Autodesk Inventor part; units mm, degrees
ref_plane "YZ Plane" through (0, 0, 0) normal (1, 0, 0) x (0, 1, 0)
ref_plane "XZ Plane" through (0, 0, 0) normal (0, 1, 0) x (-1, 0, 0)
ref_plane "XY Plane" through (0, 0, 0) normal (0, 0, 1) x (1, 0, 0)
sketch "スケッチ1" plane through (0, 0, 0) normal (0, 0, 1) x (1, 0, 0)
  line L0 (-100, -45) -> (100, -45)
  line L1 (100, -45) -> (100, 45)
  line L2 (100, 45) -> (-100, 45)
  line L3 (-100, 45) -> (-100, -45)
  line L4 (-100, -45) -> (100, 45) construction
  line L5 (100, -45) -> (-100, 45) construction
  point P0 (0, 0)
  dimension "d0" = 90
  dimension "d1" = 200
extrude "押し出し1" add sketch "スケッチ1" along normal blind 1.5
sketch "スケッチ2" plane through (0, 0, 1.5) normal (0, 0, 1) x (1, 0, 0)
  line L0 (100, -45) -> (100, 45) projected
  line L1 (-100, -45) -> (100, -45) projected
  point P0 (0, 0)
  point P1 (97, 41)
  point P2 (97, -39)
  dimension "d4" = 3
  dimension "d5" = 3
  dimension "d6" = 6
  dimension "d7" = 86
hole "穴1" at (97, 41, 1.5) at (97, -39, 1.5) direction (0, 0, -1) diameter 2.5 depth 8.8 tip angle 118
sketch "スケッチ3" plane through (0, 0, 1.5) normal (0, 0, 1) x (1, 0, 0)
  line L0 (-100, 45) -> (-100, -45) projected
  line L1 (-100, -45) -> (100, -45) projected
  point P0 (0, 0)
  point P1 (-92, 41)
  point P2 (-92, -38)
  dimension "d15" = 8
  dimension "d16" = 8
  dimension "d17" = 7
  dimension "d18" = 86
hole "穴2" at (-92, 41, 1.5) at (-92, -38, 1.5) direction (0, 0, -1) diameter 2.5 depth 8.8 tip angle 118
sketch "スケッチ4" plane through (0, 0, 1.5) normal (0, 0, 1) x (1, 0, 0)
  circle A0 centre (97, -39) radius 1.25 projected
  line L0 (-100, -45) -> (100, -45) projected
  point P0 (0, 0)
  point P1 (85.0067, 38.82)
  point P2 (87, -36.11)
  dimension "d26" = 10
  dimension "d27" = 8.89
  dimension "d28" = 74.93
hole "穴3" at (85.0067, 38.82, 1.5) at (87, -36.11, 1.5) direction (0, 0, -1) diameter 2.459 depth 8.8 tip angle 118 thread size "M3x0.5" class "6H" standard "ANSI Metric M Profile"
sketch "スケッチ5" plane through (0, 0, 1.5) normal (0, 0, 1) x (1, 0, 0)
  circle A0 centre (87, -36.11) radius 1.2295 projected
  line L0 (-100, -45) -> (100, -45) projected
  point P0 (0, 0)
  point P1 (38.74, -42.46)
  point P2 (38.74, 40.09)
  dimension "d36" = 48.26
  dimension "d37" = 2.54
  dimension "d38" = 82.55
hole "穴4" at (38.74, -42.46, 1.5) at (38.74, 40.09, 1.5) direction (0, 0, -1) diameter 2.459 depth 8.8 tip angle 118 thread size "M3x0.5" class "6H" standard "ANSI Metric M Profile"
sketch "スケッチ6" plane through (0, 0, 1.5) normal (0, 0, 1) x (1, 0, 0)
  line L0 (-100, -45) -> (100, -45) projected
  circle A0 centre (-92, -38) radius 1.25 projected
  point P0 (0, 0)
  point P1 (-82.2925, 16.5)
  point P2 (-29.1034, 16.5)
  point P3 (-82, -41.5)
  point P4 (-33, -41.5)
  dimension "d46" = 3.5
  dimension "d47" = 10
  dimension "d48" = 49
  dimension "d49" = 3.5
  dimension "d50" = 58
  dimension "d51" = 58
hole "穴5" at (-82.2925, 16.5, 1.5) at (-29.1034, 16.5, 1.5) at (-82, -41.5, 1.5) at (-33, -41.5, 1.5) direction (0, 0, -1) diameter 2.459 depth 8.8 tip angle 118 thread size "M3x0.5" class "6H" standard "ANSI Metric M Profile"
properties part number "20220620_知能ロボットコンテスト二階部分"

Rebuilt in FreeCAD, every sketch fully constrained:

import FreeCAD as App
import Part
import Sketcher

V = App.Vector

doc = App.newDocument("Part")
body = doc.addObject("PartDesign::Body", "Body")

# Sketch on XY plane
sketch1 = body.newObject("Sketcher::SketchObject", "Sketch")
sketch1.AttachmentSupport = (doc.getObject("XY_Plane"), [""])
sketch1.MapMode = "FlatFace"
sketch1.addGeometry(Part.LineSegment(V(-100, 45, 0), V(-100, -45, 0)), False)
sketch1.addGeometry(Part.LineSegment(V(-100, -45, 0), V(100, -45, 0)), False)
sketch1.addGeometry(Part.LineSegment(V(100, -45, 0), V(100, 45, 0)), False)
sketch1.addGeometry(Part.LineSegment(V(100, 45, 0), V(-100, 45, 0)), False)
sketch1.addConstraint(Sketcher.Constraint("Coincident", 0, 2, 1, 1))
sketch1.addConstraint(Sketcher.Constraint("Coincident", 1, 2, 2, 1))
sketch1.addConstraint(Sketcher.Constraint("Coincident", 2, 2, 3, 1))
sketch1.addConstraint(Sketcher.Constraint("Coincident", 3, 2, 0, 1))
sketch1.addConstraint(Sketcher.Constraint("Vertical", 0))
sketch1.addConstraint(Sketcher.Constraint("Horizontal", 1))
sketch1.addConstraint(Sketcher.Constraint("Vertical", 2))
sketch1.addConstraint(Sketcher.Constraint("Horizontal", 3))
sketch1.addConstraint(Sketcher.Constraint("Symmetric", 0, 2, 2, 2, -1, 1))
sketch1.addConstraint(Sketcher.Constraint("DistanceX", 1, 1, 1, 2, 200.0))
sketch1.addConstraint(Sketcher.Constraint("DistanceY", 0, 2, 0, 1, 90.0))
pad1 = body.newObject("PartDesign::Pad", "Pad")
pad1.Profile = sketch1
pad1.Length = 1.5

# Sketch on XY plane
sketch2 = body.newObject("Sketcher::SketchObject", "Sketch001")
sketch2.AttachmentSupport = (doc.getObject("XY_Plane"), [""])
sketch2.MapMode = "FlatFace"
sketch2.AttachmentOffset = App.Placement(V(0, 0, 1.5), App.Rotation())
sketch2.addGeometry(Part.Circle(V(97, 41, 0), V(0, 0, 1), 1.2), False)
sketch2.addGeometry(Part.Circle(V(97, -39, 0), V(0, 0, 1), 1.2), False)
sketch2.addConstraint(Sketcher.Constraint("Equal", 0, 1))
sketch2.addConstraint(Sketcher.Constraint("Vertical", 0, 3, 1, 3))
sketch2.addConstraint(Sketcher.Constraint("Diameter", 0, 2.5))
sketch2.addConstraint(Sketcher.Constraint("DistanceX", -1, 1, 0, 3, 97.0))
sketch2.addConstraint(Sketcher.Constraint("DistanceY", -1, 1, 0, 3, 41.0))
sketch2.addConstraint(Sketcher.Constraint("DistanceY", 1, 3, -1, 1, 39.0))
doc.recompute()
hole = body.newObject("PartDesign::Hole", "Hole")
hole.Profile = sketch2
hole.ThreadType = "None"
hole.Diameter = 2.5
hole.DepthType = "Dimension"
hole.Depth = 8.8
hole.DrillPoint = "Angled"
hole.DrillPointAngle = 118

# Sketch on XY plane
sketch3 = body.newObject("Sketcher::SketchObject", "Sketch002")
sketch3.AttachmentSupport = (doc.getObject("XY_Plane"), [""])
sketch3.MapMode = "FlatFace"
sketch3.AttachmentOffset = App.Placement(V(0, 0, 1.5), App.Rotation())
sketch3.addGeometry(Part.Circle(V(-92, 41, 0), V(0, 0, 1), 1.2), False)
sketch3.addGeometry(Part.Circle(V(-92, -38, 0), V(0, 0, 1), 1.2), False)
sketch3.addConstraint(Sketcher.Constraint("Equal", 0, 1))
sketch3.addConstraint(Sketcher.Constraint("Vertical", 0, 3, 1, 3))
sketch3.addConstraint(Sketcher.Constraint("Diameter", 0, 2.5))
sketch3.addConstraint(Sketcher.Constraint("DistanceX", 0, 3, -1, 1, 92.0))
sketch3.addConstraint(Sketcher.Constraint("DistanceY", -1, 1, 0, 3, 41.0))
sketch3.addConstraint(Sketcher.Constraint("DistanceY", 1, 3, -1, 1, 38.0))
doc.recompute()
hole2 = body.newObject("PartDesign::Hole", "Hole001")
hole2.Profile = sketch3
hole2.ThreadType = "None"
hole2.Diameter = 2.5
hole2.DepthType = "Dimension"
hole2.Depth = 8.8
hole2.DrillPoint = "Angled"
hole2.DrillPointAngle = 118

# Sketch on XY plane
sketch4 = body.newObject("Sketcher::SketchObject", "Sketch003")
sketch4.AttachmentSupport = (doc.getObject("XY_Plane"), [""])
sketch4.MapMode = "FlatFace"
sketch4.AttachmentOffset = App.Placement(V(0, 0, 1.5), App.Rotation())
sketch4.addGeometry(Part.Circle(V(85, 38.8, 0), V(0, 0, 1), 1.2), False)
sketch4.addGeometry(Part.Circle(V(87, -36.1, 0), V(0, 0, 1), 1.2), False)
sketch4.addConstraint(Sketcher.Constraint("Equal", 0, 1))
sketch4.addConstraint(Sketcher.Constraint("Diameter", 0, 2.459))
sketch4.addConstraint(Sketcher.Constraint("DistanceX", -1, 1, 1, 3, 87.0))
sketch4.addConstraint(Sketcher.Constraint("DistanceY", -1, 1, 0, 3, 38.82))
sketch4.addConstraint(Sketcher.Constraint("DistanceY", 1, 3, -1, 1, 36.11))
sketch4.addConstraint(Sketcher.Constraint("DistanceX", -1, 1, 0, 3, 85.0067))
doc.recompute()
hole3 = body.newObject("PartDesign::Hole", "Hole002")
hole3.Profile = sketch4
hole3.ThreadType = "None"
hole3.Diameter = 2.459
hole3.DepthType = "Dimension"
hole3.Depth = 8.8
hole3.DrillPoint = "Angled"
hole3.DrillPointAngle = 118

# Sketch on XY plane
sketch5 = body.newObject("Sketcher::SketchObject", "Sketch004")
sketch5.AttachmentSupport = (doc.getObject("XY_Plane"), [""])
sketch5.MapMode = "FlatFace"
sketch5.AttachmentOffset = App.Placement(V(0, 0, 1.5), App.Rotation())
sketch5.addGeometry(Part.Circle(V(38.7, -42.5, 0), V(0, 0, 1), 1.2), False)
sketch5.addGeometry(Part.Circle(V(38.7, 40.1, 0), V(0, 0, 1), 1.2), False)
sketch5.addConstraint(Sketcher.Constraint("Equal", 0, 1))
sketch5.addConstraint(Sketcher.Constraint("Vertical", 0, 3, 1, 3))
sketch5.addConstraint(Sketcher.Constraint("Diameter", 0, 2.459))
sketch5.addConstraint(Sketcher.Constraint("DistanceX", -1, 1, 0, 3, 38.74))
sketch5.addConstraint(Sketcher.Constraint("DistanceY", 0, 3, -1, 1, 42.46))
sketch5.addConstraint(Sketcher.Constraint("DistanceY", -1, 1, 1, 3, 40.09))
doc.recompute()
hole4 = body.newObject("PartDesign::Hole", "Hole003")
hole4.Profile = sketch5
hole4.ThreadType = "None"
hole4.Diameter = 2.459
hole4.DepthType = "Dimension"
hole4.Depth = 8.8
hole4.DrillPoint = "Angled"
hole4.DrillPointAngle = 118

# Sketch on XY plane
sketch6 = body.newObject("Sketcher::SketchObject", "Sketch005")
sketch6.AttachmentSupport = (doc.getObject("XY_Plane"), [""])
sketch6.MapMode = "FlatFace"
sketch6.AttachmentOffset = App.Placement(V(0, 0, 1.5), App.Rotation())
sketch6.addGeometry(Part.Circle(V(-82.3, 16.5, 0), V(0, 0, 1), 1.2), False)
sketch6.addGeometry(Part.Circle(V(-29.1, 16.5, 0), V(0, 0, 1), 1.2), False)
sketch6.addGeometry(Part.Circle(V(-82, -41.5, 0), V(0, 0, 1), 1.2), False)
sketch6.addGeometry(Part.Circle(V(-33, -41.5, 0), V(0, 0, 1), 1.2), False)
sketch6.addConstraint(Sketcher.Constraint("Equal", 0, 1))
sketch6.addConstraint(Sketcher.Constraint("Equal", 1, 2))
sketch6.addConstraint(Sketcher.Constraint("Equal", 2, 3))
sketch6.addConstraint(Sketcher.Constraint("Horizontal", 0, 3, 1, 3))
sketch6.addConstraint(Sketcher.Constraint("Horizontal", 2, 3, 3, 3))
sketch6.addConstraint(Sketcher.Constraint("Diameter", 0, 2.459))
sketch6.addConstraint(Sketcher.Constraint("DistanceX", 2, 3, -1, 1, 82.0))
sketch6.addConstraint(Sketcher.Constraint("DistanceX", 3, 3, -1, 1, 33.0))
sketch6.addConstraint(Sketcher.Constraint("DistanceY", 2, 3, 0, 3, 58.0))
sketch6.addConstraint(Sketcher.Constraint("DistanceY", -1, 1, 0, 3, 16.5))
sketch6.addConstraint(Sketcher.Constraint("DistanceX", 0, 3, 1, 3, 53.189))
sketch6.addConstraint(Sketcher.Constraint("DistanceX", 0, 3, -1, 1, 82.2925))
doc.recompute()
hole5 = body.newObject("PartDesign::Hole", "Hole004")
hole5.Profile = sketch6
hole5.ThreadType = "None"
hole5.Diameter = 2.459
hole5.DepthType = "Dimension"
hole5.Depth = 8.8
hole5.DrillPoint = "Angled"
hole5.DrillPointAngle = 118

doc.recompute()
